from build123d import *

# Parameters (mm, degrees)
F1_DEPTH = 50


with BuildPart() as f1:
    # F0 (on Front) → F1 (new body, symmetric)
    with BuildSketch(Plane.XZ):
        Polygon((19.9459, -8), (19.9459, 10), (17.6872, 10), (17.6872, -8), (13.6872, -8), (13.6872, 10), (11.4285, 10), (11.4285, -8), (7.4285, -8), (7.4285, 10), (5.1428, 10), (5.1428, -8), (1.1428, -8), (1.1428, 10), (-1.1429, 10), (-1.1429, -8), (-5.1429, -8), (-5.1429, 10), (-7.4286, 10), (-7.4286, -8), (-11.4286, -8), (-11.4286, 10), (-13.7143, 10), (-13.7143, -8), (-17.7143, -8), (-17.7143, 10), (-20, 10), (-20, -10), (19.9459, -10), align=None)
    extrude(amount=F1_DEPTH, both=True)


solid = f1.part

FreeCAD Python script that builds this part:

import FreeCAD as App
import Part
import Sketcher
Q = App.Units.Quantity

doc = App.newDocument("Part")
body = doc.addObject("PartDesign::Body", "Body")

sketch1 = body.newObject("Sketcher::SketchObject", "Sketch")
sketch1.AttachmentSupport = (doc.getObject("XZ_Plane"), [""])
sketch1.MapMode = "FlatFace"
sketch1.addGeometry([
    Part.LineSegment(App.Vector(19.9459, 10, 0), App.Vector(17.6872, 10, 0)),
    Part.LineSegment(App.Vector(17.6872, 10, 0), App.Vector(17.6872, -8, 0)),
    Part.LineSegment(App.Vector(17.6872, -8, 0), App.Vector(13.6872, -8, 0)),
    Part.LineSegment(App.Vector(13.6872, -8, 0), App.Vector(13.6872, 10, 0)),
    Part.LineSegment(App.Vector(13.6872, 10, 0), App.Vector(11.4285, 10, 0)),
    Part.LineSegment(App.Vector(11.4285, 10, 0), App.Vector(11.4285, -8, 0)),
    Part.LineSegment(App.Vector(11.4285, -8, 0), App.Vector(7.4285, -8, 0)),
    Part.LineSegment(App.Vector(7.4285, -8, 0), App.Vector(7.4285, 10, 0)),
    Part.LineSegment(App.Vector(7.4285, 10, 0), App.Vector(5.1428, 10, 0)),
    Part.LineSegment(App.Vector(5.1428, 10, 0), App.Vector(5.1428, -8, 0)),
    Part.LineSegment(App.Vector(5.1428, -8, 0), App.Vector(1.1428, -8, 0)),
    Part.LineSegment(App.Vector(1.1428, -8, 0), App.Vector(1.1428, 10, 0)),
    Part.LineSegment(App.Vector(1.1428, 10, 0), App.Vector(-1.1429, 10, 0)),
    Part.LineSegment(App.Vector(-1.1429, 10, 0), App.Vector(-1.1429, -8, 0)),
    Part.LineSegment(App.Vector(-1.1429, -8, 0), App.Vector(-5.1429, -8, 0)),
    Part.LineSegment(App.Vector(-5.1429, -8, 0), App.Vector(-5.1429, 10, 0)),
    Part.LineSegment(App.Vector(-5.1429, 10, 0), App.Vector(-7.4286, 10, 0)),
    Part.LineSegment(App.Vector(-7.4286, 10, 0), App.Vector(-7.4286, -8, 0)),
    Part.LineSegment(App.Vector(-7.4286, -8, 0), App.Vector(-11.4286, -8, 0)),
    Part.LineSegment(App.Vector(-11.4286, -8, 0), App.Vector(-11.4286, 10, 0)),
    Part.LineSegment(App.Vector(-11.4286, 10, 0), App.Vector(-13.7143, 10, 0)),
    Part.LineSegment(App.Vector(-13.7143, 10, 0), App.Vector(-13.7143, -8, 0)),
    Part.LineSegment(App.Vector(-13.7143, -8, 0), App.Vector(-17.7143, -8, 0)),
    Part.LineSegment(App.Vector(-17.7143, -8, 0), App.Vector(-17.7143, 10, 0)),
    Part.LineSegment(App.Vector(-17.7143, 10, 0), App.Vector(-20, 10, 0)),
    Part.LineSegment(App.Vector(-20, 10, 0), App.Vector(-20, -10, 0)),
    Part.LineSegment(App.Vector(-20, -10, 0), App.Vector(19.9459, -10, 0)),
    Part.LineSegment(App.Vector(19.9459, -10, 0), App.Vector(19.9459, 10, 0)),
], False)
sketch1.addConstraint([
    Sketcher.Constraint("Coincident", 0, 2, 1, 1),
    Sketcher.Constraint("Coincident", 1, 2, 2, 1),
    Sketcher.Constraint("Coincident", 2, 2, 3, 1),
    Sketcher.Constraint("Coincident", 3, 2, 4, 1),
    Sketcher.Constraint("Coincident", 4, 2, 5, 1),
    Sketcher.Constraint("Coincident", 5, 2, 6, 1),
    Sketcher.Constraint("Coincident", 6, 2, 7, 1),
    Sketcher.Constraint("Coincident", 7, 2, 8, 1),
    Sketcher.Constraint("Coincident", 8, 2, 9, 1),
    Sketcher.Constraint("Coincident", 9, 2, 10, 1),
    Sketcher.Constraint("Coincident", 10, 2, 11, 1),
    Sketcher.Constraint("Coincident", 11, 2, 12, 1),
    Sketcher.Constraint("Coincident", 12, 2, 13, 1),
    Sketcher.Constraint("Coincident", 13, 2, 14, 1),
    Sketcher.Constraint("Coincident", 14, 2, 15, 1),
    Sketcher.Constraint("Coincident", 15, 2, 16, 1),
    Sketcher.Constraint("Coincident", 16, 2, 17, 1),
    Sketcher.Constraint("Coincident", 17, 2, 18, 1),
    Sketcher.Constraint("Coincident", 18, 2, 19, 1),
    Sketcher.Constraint("Coincident", 19, 2, 20, 1),
    Sketcher.Constraint("Coincident", 20, 2, 21, 1),
    Sketcher.Constraint("Coincident", 21, 2, 22, 1),
    Sketcher.Constraint("Coincident", 22, 2, 23, 1),
    Sketcher.Constraint("Coincident", 23, 2, 24, 1),
    Sketcher.Constraint("Coincident", 24, 2, 25, 1),
    Sketcher.Constraint("Coincident", 25, 2, 26, 1),
    Sketcher.Constraint("Coincident", 26, 2, 27, 1),
    Sketcher.Constraint("Coincident", 27, 2, 0, 1),
    Sketcher.Constraint("Horizontal", 0),
    Sketcher.Constraint("Vertical", 1),
    Sketcher.Constraint("Horizontal", 2),
    Sketcher.Constraint("Vertical", 3),
    Sketcher.Constraint("Horizontal", 4),
    Sketcher.Constraint("Vertical", 5),
    Sketcher.Constraint("Horizontal", 6),
    Sketcher.Constraint("Vertical", 7),
    Sketcher.Constraint("Horizontal", 8),
    Sketcher.Constraint("Vertical", 9),
    Sketcher.Constraint("Horizontal", 10),
    Sketcher.Constraint("Vertical", 11),
    Sketcher.Constraint("Horizontal", 12),
    Sketcher.Constraint("Vertical", 13),
    Sketcher.Constraint("Horizontal", 14),
    Sketcher.Constraint("Vertical", 15),
    Sketcher.Constraint("Horizontal", 16),
    Sketcher.Constraint("Vertical", 17),
    Sketcher.Constraint("Horizontal", 18),
    Sketcher.Constraint("Vertical", 19),
    Sketcher.Constraint("Horizontal", 20),
    Sketcher.Constraint("Vertical", 21),
    Sketcher.Constraint("Horizontal", 22),
    Sketcher.Constraint("Vertical", 23),
    Sketcher.Constraint("Horizontal", 24),
    Sketcher.Constraint("Vertical", 25),
    Sketcher.Constraint("Horizontal", 26),
    Sketcher.Constraint("Vertical", 27),
    Sketcher.Constraint("Horizontal", 0, 2, 3, 2),
    Sketcher.Constraint("Horizontal", 2, 2, 5, 2),
    Sketcher.Constraint("Horizontal", 4, 2, 7, 2),
    Sketcher.Constraint("Horizontal", 6, 2, 9, 2),
    Sketcher.Constraint("Horizontal", 8, 2, 11, 2),
    Sketcher.Constraint("Horizontal", 10, 2, 13, 2),
    Sketcher.Constraint("Horizontal", 12, 2, 15, 2),
    Sketcher.Constraint("Horizontal", 14, 2, 17, 2),
    Sketcher.Constraint("Horizontal", 16, 2, 19, 2),
    Sketcher.Constraint("Horizontal", 18, 2, 21, 2),
    Sketcher.Constraint("Horizontal", 20, 2, 23, 2),
    Sketcher.Constraint("Equal", 0, 4),
    Sketcher.Constraint("Equal", 2, 6),
    Sketcher.Constraint("Equal", 6, 10),
    Sketcher.Constraint("Equal", 8, 12),
    Sketcher.Constraint("Equal", 10, 14),
    Sketcher.Constraint("Equal", 12, 16),
    Sketcher.Constraint("Equal", 14, 18),
    Sketcher.Constraint("Equal", 16, 20),
    Sketcher.Constraint("Equal", 18, 22),
    Sketcher.Constraint("Equal", 20, 24),
    Sketcher.Constraint("DistanceX", 2, 2, 2, 1, Q("4 mm")),
    Sketcher.Constraint("DistanceY", 1, 2, 1, 1, Q("18 mm")),
    Sketcher.Constraint("DistanceY", 25, 2, 25, 1, Q("20 mm")),
    Sketcher.Constraint("DistanceY", -1, 1, 0, 2, Q("10 mm")),
    Sketcher.Constraint("DistanceX", 24, 2, -1, 1, Q("20 mm")),
    Sketcher.Constraint("DistanceX", 0, 2, 0, 1, Q("2.2587 mm")),
    Sketcher.Constraint("DistanceX", 8, 2, 8, 1, Q("2.2857 mm")),
])
pad1 = body.newObject("PartDesign::Pad", "Pad")
pad1.Profile = sketch1
pad1.Length = 100
pad1.Midplane = True

doc.recompute()
